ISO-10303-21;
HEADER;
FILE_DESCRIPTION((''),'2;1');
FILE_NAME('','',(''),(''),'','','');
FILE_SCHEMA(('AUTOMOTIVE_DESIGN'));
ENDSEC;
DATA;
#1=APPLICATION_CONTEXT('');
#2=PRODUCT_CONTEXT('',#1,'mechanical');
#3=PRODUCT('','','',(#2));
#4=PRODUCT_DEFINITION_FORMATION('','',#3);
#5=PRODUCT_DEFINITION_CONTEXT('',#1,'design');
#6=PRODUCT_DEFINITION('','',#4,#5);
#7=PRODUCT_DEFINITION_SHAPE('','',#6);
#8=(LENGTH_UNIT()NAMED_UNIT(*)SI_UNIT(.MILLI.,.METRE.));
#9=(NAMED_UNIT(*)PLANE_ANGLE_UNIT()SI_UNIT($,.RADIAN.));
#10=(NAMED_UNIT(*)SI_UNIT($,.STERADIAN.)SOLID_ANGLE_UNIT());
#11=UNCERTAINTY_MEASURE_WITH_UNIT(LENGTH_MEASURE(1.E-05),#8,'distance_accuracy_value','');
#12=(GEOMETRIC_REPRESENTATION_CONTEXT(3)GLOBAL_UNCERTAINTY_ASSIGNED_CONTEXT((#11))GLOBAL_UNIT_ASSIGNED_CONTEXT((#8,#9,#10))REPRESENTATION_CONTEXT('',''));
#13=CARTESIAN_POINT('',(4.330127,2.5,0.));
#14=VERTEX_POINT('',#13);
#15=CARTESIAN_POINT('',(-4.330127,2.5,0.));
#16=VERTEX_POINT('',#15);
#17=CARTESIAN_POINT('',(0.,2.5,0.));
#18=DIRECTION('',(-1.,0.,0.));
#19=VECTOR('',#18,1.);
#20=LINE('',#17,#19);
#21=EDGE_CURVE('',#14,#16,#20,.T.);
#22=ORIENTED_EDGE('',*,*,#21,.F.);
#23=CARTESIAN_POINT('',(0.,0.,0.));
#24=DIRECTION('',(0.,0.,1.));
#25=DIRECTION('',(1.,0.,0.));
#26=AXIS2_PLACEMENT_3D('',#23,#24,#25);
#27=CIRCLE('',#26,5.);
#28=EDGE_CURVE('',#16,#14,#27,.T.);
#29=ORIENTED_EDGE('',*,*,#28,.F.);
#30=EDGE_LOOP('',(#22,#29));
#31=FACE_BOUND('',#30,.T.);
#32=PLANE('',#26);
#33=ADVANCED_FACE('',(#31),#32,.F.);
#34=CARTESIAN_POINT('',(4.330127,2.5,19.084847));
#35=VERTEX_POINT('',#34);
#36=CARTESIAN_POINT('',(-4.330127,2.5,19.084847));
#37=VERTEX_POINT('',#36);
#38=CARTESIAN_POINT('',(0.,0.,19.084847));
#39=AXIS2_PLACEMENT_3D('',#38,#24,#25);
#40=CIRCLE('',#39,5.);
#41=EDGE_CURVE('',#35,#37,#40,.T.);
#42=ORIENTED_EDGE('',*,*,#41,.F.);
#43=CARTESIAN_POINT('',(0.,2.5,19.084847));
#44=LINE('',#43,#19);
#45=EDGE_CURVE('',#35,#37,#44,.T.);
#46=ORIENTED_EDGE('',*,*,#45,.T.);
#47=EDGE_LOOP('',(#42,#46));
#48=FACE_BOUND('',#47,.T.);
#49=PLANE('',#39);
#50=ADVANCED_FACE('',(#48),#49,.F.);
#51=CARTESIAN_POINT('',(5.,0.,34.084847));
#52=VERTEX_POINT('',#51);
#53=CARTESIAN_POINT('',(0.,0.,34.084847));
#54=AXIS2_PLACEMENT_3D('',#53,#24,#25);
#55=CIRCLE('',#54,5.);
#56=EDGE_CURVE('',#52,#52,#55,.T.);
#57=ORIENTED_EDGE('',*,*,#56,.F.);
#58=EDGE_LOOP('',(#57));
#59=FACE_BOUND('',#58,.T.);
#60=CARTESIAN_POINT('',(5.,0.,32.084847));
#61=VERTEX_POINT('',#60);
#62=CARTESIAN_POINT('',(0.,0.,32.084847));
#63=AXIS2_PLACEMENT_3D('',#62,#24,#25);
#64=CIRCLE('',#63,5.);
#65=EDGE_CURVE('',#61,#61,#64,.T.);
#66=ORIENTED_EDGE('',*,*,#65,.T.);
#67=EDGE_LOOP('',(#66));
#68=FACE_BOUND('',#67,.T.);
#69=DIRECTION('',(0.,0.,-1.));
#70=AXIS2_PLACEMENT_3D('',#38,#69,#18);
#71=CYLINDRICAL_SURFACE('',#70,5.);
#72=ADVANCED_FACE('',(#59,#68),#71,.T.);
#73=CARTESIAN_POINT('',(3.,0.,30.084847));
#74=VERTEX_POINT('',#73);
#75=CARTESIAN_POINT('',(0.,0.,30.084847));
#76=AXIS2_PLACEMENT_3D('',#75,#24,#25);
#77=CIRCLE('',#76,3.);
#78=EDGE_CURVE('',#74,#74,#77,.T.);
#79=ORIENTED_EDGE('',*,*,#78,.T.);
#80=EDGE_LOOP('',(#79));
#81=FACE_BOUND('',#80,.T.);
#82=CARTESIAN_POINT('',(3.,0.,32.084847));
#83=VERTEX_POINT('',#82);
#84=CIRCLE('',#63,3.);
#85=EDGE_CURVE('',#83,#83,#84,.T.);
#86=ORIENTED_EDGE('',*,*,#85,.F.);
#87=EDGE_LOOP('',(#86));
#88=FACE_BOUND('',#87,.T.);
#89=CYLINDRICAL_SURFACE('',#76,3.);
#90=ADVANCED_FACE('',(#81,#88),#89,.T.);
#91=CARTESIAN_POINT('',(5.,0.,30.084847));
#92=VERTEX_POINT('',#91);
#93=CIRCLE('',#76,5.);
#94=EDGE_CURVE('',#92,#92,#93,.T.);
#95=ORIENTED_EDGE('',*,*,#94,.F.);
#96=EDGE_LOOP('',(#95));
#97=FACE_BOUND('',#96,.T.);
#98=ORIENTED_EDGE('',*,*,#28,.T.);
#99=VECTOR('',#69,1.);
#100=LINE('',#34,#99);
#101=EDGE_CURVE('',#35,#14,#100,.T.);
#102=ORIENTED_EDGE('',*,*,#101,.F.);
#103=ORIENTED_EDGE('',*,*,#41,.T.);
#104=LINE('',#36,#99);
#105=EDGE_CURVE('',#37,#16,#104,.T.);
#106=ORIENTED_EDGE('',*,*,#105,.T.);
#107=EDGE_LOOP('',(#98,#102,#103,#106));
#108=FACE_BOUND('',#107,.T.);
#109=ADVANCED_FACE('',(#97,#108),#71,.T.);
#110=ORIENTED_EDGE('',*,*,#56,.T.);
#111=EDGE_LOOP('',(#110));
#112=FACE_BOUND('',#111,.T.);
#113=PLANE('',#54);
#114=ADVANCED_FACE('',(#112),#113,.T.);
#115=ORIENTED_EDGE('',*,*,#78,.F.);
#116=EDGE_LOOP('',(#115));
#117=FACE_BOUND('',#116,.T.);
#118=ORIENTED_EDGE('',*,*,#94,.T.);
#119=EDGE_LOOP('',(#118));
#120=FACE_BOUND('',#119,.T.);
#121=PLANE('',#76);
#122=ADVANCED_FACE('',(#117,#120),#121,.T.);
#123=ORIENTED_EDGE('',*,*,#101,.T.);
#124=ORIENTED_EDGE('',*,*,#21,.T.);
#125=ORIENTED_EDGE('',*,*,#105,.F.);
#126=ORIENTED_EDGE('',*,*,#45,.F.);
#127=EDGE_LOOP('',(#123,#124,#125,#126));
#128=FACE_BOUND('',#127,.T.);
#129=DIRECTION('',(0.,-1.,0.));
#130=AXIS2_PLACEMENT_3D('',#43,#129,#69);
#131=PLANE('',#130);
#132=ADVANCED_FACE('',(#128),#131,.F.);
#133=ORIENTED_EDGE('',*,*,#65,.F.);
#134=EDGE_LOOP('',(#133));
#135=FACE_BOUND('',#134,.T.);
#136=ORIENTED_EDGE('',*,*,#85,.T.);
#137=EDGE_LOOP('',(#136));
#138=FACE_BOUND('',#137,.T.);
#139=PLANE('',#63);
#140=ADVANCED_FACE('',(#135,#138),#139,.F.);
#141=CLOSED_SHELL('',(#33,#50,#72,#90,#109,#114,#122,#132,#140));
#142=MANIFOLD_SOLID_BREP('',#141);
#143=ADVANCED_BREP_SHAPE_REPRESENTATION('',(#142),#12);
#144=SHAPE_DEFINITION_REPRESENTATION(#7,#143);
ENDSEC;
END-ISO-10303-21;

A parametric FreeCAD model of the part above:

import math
import FreeCAD as App
import Part
import Sketcher

V = App.Vector
Q = App.Units.Quantity

doc = App.newDocument("Part")
body = doc.addObject("PartDesign::Body", "Body")

# Sketch on XY plane
sketch1 = body.newObject("Sketcher::SketchObject", "Sketch")
sketch1.AttachmentSupport = (doc.getObject("XY_Plane"), [""])
sketch1.MapMode = "FlatFace"
sketch1.addGeometry(Part.ArcOfCircle(Part.Circle(V(0, 0, 0), V(0, 0, 1), 5), math.radians(150), math.radians(390)), False)
sketch1.addGeometry(Part.LineSegment(V(4, 2, 0), V(-4, 2, 0)), False)
sketch1.addConstraint(Sketcher.Constraint("Coincident", 0, 1, 1, 2))
sketch1.addConstraint(Sketcher.Constraint("Coincident", 1, 1, 0, 2))
sketch1.addConstraint(Sketcher.Constraint("Horizontal", 1))
sketch1.addConstraint(Sketcher.Constraint("Coincident", 0, 3, -1, 1))
sketch1.addConstraint(Sketcher.Constraint("Radius", 0, Q("5 mm")))
sketch1.addConstraint(Sketcher.Constraint("DistanceY", -1, 1, 0, 1, Q("2.5 mm")))
pad1 = body.newObject("PartDesign::Pad", "Pad")
pad1.Profile = sketch1
pad1.Length = 19.084847

# Sketch on XY plane
sketch2 = body.newObject("Sketcher::SketchObject", "Sketch001")
sketch2.AttachmentSupport = (doc.getObject("XY_Plane"), [""])
sketch2.MapMode = "FlatFace"
sketch2.AttachmentOffset = App.Placement(V(0, 0, 19.084847), App.Rotation())
sketch2.addGeometry(Part.Circle(V(0, 0, 0), V(0, 0, 1), 5), False)
sketch2.addConstraint(Sketcher.Constraint("Coincident", 0, 3, -1, 1))
sketch2.addConstraint(Sketcher.Constraint("Diameter", 0, Q("10 mm")))
pad2 = body.newObject("PartDesign::Pad", "Pad001")
pad2.Profile = sketch2
pad2.Length = 15

# Sketch on XY plane
sketch3 = body.newObject("Sketcher::SketchObject", "Sketch002")
sketch3.AttachmentSupport = (doc.getObject("XY_Plane"), [""])
sketch3.MapMode = "FlatFace"
sketch3.AttachmentOffset = App.Placement(V(0, 0, 30.084847), App.Rotation())
sketch3.addGeometry(Part.Circle(V(0, 0, 0), V(0, 0, 1), 5), False)
sketch3.addGeometry(Part.Circle(V(0, 0, 0), V(0, 0, 1), 3), False)
sketch3.addConstraint(Sketcher.Constraint("Coincident", 0, 3, -1, 1))
sketch3.addConstraint(Sketcher.Constraint("Coincident", 1, 3, -1, 1))
sketch3.addConstraint(Sketcher.Constraint("Diameter", 0, Q("10 mm")))
sketch3.addConstraint(Sketcher.Constraint("Diameter", 1, Q("6 mm")))
pocket1 = body.newObject("PartDesign::Pocket", "Pocket")
pocket1.Profile = sketch3
pocket1.Length = 2
pocket1.Reversed = True

doc.recompute()
